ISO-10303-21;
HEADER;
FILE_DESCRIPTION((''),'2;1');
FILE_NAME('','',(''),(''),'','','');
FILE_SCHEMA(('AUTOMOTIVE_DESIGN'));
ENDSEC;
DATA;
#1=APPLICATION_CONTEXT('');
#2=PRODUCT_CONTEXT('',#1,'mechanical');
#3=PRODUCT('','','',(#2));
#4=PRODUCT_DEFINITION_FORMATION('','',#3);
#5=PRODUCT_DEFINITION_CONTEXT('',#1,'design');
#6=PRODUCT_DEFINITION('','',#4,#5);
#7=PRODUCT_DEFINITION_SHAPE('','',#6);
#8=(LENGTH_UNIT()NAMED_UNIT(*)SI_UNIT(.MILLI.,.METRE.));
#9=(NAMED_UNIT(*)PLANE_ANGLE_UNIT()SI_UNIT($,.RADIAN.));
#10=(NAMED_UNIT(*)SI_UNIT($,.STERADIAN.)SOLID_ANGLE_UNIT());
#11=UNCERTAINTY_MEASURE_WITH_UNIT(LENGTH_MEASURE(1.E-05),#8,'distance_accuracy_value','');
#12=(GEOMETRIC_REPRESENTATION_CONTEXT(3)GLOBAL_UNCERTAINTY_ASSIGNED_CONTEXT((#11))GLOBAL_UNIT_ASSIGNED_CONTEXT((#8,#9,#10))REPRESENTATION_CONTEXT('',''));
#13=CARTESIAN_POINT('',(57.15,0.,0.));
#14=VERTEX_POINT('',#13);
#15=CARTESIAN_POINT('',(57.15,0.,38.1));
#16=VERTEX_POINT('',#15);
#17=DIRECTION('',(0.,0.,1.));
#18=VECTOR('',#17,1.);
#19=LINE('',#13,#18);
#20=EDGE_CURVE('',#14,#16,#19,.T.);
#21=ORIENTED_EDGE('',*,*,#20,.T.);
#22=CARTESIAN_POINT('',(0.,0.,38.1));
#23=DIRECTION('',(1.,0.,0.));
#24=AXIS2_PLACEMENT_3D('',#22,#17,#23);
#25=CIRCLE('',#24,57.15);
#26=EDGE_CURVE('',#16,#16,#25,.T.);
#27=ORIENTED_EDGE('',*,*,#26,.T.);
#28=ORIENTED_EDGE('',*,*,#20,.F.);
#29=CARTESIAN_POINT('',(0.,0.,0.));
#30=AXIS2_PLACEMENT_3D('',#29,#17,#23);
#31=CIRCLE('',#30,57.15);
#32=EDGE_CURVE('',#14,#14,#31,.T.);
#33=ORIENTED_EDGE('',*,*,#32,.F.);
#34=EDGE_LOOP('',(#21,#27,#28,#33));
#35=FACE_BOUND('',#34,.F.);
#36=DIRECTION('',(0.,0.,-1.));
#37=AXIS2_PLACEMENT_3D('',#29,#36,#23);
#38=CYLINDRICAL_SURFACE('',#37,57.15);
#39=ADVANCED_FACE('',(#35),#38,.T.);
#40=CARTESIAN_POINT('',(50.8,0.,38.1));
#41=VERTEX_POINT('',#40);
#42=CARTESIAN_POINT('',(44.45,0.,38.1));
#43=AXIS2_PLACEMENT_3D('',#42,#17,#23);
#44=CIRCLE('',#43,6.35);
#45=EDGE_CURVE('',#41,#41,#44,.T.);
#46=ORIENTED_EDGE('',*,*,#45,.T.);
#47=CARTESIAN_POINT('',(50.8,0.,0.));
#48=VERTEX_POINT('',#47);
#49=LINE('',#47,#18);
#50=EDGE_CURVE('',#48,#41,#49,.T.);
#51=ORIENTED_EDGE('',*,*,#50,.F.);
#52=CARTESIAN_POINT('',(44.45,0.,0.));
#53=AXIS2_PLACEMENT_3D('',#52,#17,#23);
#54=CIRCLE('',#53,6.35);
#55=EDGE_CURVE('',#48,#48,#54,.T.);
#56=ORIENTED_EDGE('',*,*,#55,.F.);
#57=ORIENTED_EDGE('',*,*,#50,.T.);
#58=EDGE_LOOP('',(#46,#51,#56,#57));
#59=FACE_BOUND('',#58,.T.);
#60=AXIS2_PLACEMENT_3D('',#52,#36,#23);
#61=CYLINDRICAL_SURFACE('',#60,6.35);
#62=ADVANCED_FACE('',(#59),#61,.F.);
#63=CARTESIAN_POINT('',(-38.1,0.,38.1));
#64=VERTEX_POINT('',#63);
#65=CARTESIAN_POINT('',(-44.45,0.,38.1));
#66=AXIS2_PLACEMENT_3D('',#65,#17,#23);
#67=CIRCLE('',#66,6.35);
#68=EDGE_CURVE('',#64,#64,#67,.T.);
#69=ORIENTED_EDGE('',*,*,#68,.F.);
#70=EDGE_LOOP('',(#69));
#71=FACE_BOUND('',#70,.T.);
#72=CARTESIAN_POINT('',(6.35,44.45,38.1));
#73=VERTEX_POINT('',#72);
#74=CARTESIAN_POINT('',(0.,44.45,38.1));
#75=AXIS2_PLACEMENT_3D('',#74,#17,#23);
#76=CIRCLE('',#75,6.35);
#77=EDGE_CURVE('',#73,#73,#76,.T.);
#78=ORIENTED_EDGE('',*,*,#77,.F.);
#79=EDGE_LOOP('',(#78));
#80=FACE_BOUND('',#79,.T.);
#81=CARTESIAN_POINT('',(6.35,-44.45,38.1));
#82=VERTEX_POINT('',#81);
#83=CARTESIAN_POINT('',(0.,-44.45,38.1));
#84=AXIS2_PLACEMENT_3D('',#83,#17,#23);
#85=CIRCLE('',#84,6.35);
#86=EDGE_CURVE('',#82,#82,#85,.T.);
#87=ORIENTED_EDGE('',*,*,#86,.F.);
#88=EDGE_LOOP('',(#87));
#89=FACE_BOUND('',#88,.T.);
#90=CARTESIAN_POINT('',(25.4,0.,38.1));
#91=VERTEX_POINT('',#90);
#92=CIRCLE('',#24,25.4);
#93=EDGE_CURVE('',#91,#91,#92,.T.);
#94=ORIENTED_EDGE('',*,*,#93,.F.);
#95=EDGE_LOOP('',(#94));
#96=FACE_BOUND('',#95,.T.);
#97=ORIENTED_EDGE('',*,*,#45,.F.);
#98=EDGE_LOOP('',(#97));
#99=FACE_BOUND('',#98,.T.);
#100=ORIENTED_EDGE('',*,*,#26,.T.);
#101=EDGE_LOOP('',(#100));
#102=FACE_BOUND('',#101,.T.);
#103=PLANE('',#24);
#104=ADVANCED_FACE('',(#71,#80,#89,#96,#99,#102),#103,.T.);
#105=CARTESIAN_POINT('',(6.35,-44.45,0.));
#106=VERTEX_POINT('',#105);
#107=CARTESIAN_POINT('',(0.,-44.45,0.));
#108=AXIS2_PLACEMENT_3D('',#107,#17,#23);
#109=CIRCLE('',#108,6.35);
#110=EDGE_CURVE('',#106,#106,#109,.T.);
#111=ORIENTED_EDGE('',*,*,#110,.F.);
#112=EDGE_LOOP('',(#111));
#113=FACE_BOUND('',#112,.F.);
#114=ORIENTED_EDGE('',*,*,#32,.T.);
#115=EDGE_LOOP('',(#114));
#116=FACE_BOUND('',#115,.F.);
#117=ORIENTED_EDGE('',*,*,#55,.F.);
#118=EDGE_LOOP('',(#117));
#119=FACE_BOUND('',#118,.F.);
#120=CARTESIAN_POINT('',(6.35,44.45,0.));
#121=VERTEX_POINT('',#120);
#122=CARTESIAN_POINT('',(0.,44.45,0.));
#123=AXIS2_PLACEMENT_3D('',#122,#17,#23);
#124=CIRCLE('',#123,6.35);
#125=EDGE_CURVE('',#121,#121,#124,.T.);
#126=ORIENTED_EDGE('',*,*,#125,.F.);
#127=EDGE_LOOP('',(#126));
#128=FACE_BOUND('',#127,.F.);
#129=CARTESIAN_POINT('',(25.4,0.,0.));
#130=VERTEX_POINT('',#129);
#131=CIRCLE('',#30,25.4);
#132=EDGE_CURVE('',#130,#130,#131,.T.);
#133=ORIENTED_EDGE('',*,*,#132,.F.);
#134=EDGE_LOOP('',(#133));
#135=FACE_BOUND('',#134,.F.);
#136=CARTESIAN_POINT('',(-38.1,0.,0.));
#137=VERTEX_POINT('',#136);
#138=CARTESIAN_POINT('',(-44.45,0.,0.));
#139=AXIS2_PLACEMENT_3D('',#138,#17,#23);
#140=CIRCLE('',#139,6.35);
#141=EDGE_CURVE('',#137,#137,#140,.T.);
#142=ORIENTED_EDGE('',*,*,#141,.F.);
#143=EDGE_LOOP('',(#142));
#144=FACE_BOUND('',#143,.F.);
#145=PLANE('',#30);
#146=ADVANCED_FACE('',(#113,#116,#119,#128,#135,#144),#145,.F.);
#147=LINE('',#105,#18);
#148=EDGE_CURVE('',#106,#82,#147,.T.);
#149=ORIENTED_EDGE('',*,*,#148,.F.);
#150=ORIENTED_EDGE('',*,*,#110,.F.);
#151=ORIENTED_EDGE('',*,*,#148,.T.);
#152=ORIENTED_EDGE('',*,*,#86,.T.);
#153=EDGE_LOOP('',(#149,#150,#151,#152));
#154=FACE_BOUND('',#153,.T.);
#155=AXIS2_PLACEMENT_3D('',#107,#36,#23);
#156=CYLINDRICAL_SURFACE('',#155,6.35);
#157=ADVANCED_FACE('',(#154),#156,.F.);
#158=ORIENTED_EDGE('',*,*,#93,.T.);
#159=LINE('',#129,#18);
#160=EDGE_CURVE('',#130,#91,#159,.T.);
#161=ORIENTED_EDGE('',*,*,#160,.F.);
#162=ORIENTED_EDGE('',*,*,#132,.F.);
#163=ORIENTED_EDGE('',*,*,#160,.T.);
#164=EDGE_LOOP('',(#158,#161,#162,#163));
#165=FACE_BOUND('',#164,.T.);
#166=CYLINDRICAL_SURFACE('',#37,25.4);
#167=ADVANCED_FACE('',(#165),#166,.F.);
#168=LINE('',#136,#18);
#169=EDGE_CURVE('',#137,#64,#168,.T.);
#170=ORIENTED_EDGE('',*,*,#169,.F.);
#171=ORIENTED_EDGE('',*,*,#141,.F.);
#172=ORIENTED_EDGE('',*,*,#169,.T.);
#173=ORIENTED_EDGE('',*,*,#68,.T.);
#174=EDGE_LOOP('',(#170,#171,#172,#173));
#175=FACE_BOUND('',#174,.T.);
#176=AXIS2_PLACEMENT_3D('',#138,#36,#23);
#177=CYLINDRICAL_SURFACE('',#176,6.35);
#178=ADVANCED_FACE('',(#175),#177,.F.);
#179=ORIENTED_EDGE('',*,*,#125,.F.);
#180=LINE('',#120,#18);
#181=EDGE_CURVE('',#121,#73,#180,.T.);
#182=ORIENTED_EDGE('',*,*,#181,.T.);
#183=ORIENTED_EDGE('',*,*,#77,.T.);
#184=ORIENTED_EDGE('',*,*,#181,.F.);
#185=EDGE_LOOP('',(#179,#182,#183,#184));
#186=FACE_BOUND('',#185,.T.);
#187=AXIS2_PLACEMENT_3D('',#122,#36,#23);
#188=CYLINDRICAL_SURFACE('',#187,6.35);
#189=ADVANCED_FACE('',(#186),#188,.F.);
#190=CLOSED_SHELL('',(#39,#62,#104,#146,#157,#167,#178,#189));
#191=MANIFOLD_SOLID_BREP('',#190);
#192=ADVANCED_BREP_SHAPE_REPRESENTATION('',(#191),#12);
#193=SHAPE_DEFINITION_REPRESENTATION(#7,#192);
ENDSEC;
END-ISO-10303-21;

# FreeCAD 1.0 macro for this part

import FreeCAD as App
import Part
import Sketcher
from FreeCAD import Vector
Q = App.Units.Quantity

doc = App.newDocument("Part")
body = doc.addObject("PartDesign::Body", "Body")

# Sketch on XY plane
sketch1 = body.newObject("Sketcher::SketchObject", "Sketch")
sketch1.AttachmentSupport = (doc.getObject("XY_Plane"), [""])
sketch1.MapMode = "FlatFace"
sketch1.addGeometry(Part.Circle(Vector(0, 0, 0), Vector(0, 0, 1), 57.15), False)
sketch1.addGeometry(Part.Circle(Vector(0, -44.45, 0), Vector(0, 0, 1), 6.35), False)
sketch1.addGeometry(Part.Circle(Vector(-44.45, 0, 0), Vector(0, 0, 1), 6.35), False)
sketch1.addGeometry(Part.Circle(Vector(0, 0, 0), Vector(0, 0, 1), 25.4), False)
sketch1.addGeometry(Part.Circle(Vector(44.45, 0, 0), Vector(0, 0, 1), 6.35), False)
sketch1.addGeometry(Part.Circle(Vector(0, 44.45, 0), Vector(0, 0, 1), 6.35), False)
sketch1.addConstraint(Sketcher.Constraint("Coincident", 0, 3, -1, 1))
sketch1.addConstraint(Sketcher.Constraint("Coincident", 3, 3, -1, 1))
sketch1.addConstraint(Sketcher.Constraint("Equal", 1, 2))
sketch1.addConstraint(Sketcher.Constraint("Equal", 2, 4))
sketch1.addConstraint(Sketcher.Constraint("Equal", 4, 5))
sketch1.addConstraint(Sketcher.Constraint("Symmetric", 2, 3, 4, 3, -1, 1))
sketch1.addConstraint(Sketcher.Constraint("Symmetric", 1, 3, 5, 3, -1, 1))
sketch1.addConstraint(Sketcher.Constraint("PointOnObject", 1, 3, -2))
sketch1.addConstraint(Sketcher.Constraint("PointOnObject", 2, 3, -1))
sketch1.addConstraint(Sketcher.Constraint("Diameter", 0, Q("4.5 in")))
sketch1.addConstraint(Sketcher.Constraint("Diameter", 3, Q("2 in")))
sketch1.addConstraint(Sketcher.Constraint("Diameter", 1, Q("0.5 in")))
sketch1.addConstraint(Sketcher.Constraint("DistanceX", 2, 3, 4, 3, Q("3.5 in")))
sketch1.addConstraint(Sketcher.Constraint("DistanceY", 1, 3, 5, 3, Q("3.5 in")))
pad1 = body.newObject("PartDesign::Pad", "Pad")
pad1.Profile = sketch1
pad1.Length = Q("1.5 in")

doc.recompute()
